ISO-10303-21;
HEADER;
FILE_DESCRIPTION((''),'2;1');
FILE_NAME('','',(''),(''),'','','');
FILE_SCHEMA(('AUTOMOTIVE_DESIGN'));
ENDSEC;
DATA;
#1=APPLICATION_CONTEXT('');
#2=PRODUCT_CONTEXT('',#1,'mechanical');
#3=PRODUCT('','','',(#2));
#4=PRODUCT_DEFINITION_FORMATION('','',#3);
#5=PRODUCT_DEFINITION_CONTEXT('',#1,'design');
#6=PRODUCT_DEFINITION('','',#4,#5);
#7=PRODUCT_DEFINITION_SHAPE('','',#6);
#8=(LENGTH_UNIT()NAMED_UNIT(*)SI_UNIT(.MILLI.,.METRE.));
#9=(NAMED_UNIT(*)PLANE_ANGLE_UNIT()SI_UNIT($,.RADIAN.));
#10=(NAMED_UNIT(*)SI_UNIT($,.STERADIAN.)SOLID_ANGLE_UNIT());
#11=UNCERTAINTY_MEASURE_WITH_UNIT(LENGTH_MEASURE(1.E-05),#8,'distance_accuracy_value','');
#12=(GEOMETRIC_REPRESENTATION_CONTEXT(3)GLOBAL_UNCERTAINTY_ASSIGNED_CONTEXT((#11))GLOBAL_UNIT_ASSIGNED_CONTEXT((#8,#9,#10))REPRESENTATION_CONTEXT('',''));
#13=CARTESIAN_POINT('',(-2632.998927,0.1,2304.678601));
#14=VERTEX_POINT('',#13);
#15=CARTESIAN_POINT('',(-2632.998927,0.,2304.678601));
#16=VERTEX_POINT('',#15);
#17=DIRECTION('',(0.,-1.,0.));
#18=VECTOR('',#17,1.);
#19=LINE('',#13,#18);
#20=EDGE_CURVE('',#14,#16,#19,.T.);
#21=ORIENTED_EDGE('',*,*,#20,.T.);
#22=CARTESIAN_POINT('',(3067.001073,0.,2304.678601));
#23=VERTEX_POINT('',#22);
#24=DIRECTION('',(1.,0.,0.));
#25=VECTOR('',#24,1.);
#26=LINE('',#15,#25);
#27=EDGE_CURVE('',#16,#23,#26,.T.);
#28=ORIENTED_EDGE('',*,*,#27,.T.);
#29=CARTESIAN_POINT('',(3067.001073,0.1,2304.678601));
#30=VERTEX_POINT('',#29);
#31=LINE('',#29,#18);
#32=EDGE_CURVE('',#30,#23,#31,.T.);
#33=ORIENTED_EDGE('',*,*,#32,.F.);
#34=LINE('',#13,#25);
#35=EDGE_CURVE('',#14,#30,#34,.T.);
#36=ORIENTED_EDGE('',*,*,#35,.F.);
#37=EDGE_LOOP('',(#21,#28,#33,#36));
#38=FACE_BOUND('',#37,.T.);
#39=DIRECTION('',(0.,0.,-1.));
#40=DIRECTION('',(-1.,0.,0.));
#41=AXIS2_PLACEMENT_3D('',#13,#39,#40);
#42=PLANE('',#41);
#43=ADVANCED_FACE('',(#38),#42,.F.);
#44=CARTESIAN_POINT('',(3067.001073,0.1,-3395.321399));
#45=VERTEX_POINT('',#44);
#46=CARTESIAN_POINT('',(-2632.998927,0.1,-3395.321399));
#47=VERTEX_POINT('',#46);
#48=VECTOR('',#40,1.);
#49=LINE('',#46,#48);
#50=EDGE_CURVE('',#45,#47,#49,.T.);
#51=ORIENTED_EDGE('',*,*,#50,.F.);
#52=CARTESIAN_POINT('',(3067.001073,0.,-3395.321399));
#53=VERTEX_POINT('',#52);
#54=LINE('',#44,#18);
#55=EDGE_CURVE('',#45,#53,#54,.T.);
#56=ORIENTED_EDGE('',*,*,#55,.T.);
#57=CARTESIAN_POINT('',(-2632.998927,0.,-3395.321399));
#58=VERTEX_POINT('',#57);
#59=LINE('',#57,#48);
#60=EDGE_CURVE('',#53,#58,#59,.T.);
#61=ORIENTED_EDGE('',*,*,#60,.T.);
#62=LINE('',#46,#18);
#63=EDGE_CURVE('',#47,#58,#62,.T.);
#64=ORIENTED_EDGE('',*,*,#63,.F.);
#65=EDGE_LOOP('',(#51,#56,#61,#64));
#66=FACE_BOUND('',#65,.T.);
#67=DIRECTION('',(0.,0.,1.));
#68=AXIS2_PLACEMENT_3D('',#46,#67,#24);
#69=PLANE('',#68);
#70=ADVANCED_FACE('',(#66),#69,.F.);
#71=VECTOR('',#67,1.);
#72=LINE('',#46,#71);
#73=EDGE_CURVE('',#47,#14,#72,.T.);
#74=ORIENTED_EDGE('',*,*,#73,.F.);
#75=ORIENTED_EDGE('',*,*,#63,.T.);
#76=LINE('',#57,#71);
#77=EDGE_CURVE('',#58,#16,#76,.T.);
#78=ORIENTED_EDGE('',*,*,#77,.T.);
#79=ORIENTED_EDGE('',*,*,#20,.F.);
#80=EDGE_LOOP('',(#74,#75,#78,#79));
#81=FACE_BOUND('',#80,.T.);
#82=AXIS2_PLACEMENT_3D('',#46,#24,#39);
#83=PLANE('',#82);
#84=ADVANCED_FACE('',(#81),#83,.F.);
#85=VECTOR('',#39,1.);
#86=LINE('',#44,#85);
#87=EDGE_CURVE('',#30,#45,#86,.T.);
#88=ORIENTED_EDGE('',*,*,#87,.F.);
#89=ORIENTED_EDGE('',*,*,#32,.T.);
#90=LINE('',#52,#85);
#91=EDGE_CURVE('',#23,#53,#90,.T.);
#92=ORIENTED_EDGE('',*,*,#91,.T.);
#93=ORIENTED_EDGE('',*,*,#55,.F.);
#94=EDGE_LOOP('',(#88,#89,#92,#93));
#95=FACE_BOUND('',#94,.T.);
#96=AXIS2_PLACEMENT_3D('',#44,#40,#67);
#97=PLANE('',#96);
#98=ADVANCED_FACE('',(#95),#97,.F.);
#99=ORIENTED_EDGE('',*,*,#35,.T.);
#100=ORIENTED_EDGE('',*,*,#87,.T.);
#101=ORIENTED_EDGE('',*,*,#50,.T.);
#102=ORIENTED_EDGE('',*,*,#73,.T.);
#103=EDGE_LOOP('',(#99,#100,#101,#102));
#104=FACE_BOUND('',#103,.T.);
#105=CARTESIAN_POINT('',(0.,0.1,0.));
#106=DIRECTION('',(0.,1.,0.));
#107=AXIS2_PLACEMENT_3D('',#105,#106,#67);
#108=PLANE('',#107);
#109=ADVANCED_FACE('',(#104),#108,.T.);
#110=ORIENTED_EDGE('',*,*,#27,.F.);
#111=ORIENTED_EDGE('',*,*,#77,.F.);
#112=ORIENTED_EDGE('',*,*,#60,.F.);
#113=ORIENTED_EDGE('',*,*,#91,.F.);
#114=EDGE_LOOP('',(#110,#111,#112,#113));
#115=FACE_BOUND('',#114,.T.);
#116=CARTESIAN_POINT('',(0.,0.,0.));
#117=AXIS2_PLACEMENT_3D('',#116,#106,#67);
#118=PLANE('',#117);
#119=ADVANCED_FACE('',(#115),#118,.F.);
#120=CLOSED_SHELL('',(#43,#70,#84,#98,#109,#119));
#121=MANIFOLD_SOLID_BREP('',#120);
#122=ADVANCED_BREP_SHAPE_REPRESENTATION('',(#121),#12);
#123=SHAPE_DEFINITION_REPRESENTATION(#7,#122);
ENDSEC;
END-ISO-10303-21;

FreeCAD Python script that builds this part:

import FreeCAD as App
import Part
import Sketcher

V = App.Vector
Q = App.Units.Quantity

doc = App.newDocument("Part")
body = doc.addObject("PartDesign::Body", "Body")

# Sketch on XZ plane
sketch1 = body.newObject("Sketcher::SketchObject", "Sketch")
sketch1.AttachmentSupport = (doc.getObject("XZ_Plane"), [""])
sketch1.MapMode = "FlatFace"
sketch1.addGeometry([
    Part.LineSegment(V(-2633, -3395, 0), V(-2633, 2305, 0)),
    Part.LineSegment(V(-2633, 2305, 0), V(3067, 2305, 0)),
    Part.LineSegment(V(3067, 2305, 0), V(3067, -3395, 0)),
    Part.LineSegment(V(3067, -3395, 0), V(-2633, -3395, 0)),
], False)
sketch1.addConstraint([
    Sketcher.Constraint("Coincident", 0, 2, 1, 1),
    Sketcher.Constraint("Coincident", 1, 2, 2, 1),
    Sketcher.Constraint("Coincident", 2, 2, 3, 1),
    Sketcher.Constraint("Coincident", 3, 2, 0, 1),
    Sketcher.Constraint("Vertical", 0),
    Sketcher.Constraint("Horizontal", 1),
    Sketcher.Constraint("Vertical", 2),
    Sketcher.Constraint("Horizontal", 3),
    Sketcher.Constraint("Equal", 3, 0),
    Sketcher.Constraint("DistanceX", 1, 1, 1, 2, Q("5700 mm")),
    Sketcher.Constraint("DistanceY", -1, 1, 0, 2, Q("2304.678601 mm")),
    Sketcher.Constraint("DistanceX", 0, 2, -1, 1, Q("2632.998927 mm")),
])
pad1 = body.newObject("PartDesign::Pad", "Pad")
pad1.Profile = sketch1
pad1.Length = 0.1
pad1.Reversed = True

doc.recompute()
